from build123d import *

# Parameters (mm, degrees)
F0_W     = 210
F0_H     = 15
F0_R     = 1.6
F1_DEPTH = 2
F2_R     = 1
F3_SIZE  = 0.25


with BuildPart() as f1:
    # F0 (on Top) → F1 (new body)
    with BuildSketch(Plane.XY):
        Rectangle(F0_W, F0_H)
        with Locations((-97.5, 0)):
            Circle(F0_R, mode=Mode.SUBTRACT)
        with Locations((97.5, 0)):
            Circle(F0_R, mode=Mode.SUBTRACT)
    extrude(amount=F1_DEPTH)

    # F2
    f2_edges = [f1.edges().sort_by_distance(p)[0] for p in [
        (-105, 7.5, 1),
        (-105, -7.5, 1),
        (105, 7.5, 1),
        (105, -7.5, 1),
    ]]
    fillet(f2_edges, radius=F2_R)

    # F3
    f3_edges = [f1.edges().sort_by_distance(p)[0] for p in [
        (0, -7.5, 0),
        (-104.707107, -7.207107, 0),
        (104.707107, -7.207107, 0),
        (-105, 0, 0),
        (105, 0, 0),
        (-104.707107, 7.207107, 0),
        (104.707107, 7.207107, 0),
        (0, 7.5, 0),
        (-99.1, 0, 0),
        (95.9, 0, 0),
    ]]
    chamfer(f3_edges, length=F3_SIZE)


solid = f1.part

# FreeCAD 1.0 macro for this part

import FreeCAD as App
import Part
import Sketcher
from FreeCAD import Vector
Q = App.Units.Quantity


def edges_at(feature, points):
    """Names of the edges that pass closest to the given points."""
    edges = feature.Shape.Edges
    near = lambda p: min(range(len(edges)), key=lambda i: edges[i].distToShape(Part.Vertex(*p))[0])
    return sorted({f"Edge{near(p) + 1}" for p in points})


def add_polygon(sketch, points):
    """Adds a closed chain of lines whose ends are joined by coincident constraints."""
    first, n = sketch.GeometryCount, len(points)
    for a, b in zip(points, points[1:] + points[:1]):
        sketch.addGeometry(Part.LineSegment(App.Vector(*a, 0), App.Vector(*b, 0)), False)
    for i in range(n):
        sketch.addConstraint(Sketcher.Constraint("Coincident", first + i, 2, first + (i + 1) % n, 1))

doc = App.newDocument("Part")
body = doc.addObject("PartDesign::Body", "Body")

# Sketch on XY plane
sketch1 = body.newObject("Sketcher::SketchObject", "Sketch")
sketch1.AttachmentSupport = (doc.getObject("XY_Plane"), [""])
sketch1.MapMode = "FlatFace"
add_polygon(sketch1, [(-105, 7.5), (-105, -7.5), (105, -7.5), (105, 7.5)])  # lines 0-3
sketch1.addGeometry(Part.Circle(Vector(-97.5, 0, 0), Vector(0, 0, 1), 1.6), False)  # 4
sketch1.addGeometry(Part.Circle(Vector(97.5, 0, 0), Vector(0, 0, 1), 1.6), False)  # 5
sketch1.addConstraint(Sketcher.Constraint("Vertical", 0))
sketch1.addConstraint(Sketcher.Constraint("Horizontal", 1))
sketch1.addConstraint(Sketcher.Constraint("Vertical", 2))
sketch1.addConstraint(Sketcher.Constraint("Horizontal", 3))
sketch1.addConstraint(Sketcher.Constraint("Equal", 4, 5))
sketch1.addConstraint(Sketcher.Constraint("Symmetric", 4, 3, 5, 3, -1, 1))
sketch1.addConstraint(Sketcher.Constraint("Symmetric", 0, 2, 2, 2, -1, 1))
sketch1.addConstraint(Sketcher.Constraint("PointOnObject", 4, 3, -1))
sketch1.addConstraint(Sketcher.Constraint("Diameter", 4, Q("3.2 mm")))
sketch1.addConstraint(Sketcher.Constraint("DistanceX", 1, 1, 1, 2, Q("210 mm")))
sketch1.addConstraint(Sketcher.Constraint("DistanceY", 0, 2, 0, 1, Q("15 mm")))
sketch1.addConstraint(Sketcher.Constraint("DistanceX", 4, 3, 5, 3, Q("195 mm")))
pad1 = body.newObject("PartDesign::Pad", "Pad")
pad1.Profile = sketch1
pad1.Length = 2
doc.recompute()

fillet = body.newObject("PartDesign::Fillet", "Fillet")
fillet.Base = (pad1, edges_at(pad1, [
    (-105, 7.5, 1),
    (-105, -7.5, 1),
    (105, 7.5, 1),
    (105, -7.5, 1),
]))
fillet.Radius = 1
doc.recompute()

chamfer = body.newObject("PartDesign::Chamfer", "Chamfer")
chamfer.Base = (fillet, edges_at(fillet, [
    (0, -7.5, 0),
    (-104.707, -7.207, 0),
    (104.707, -7.207, 0),
    (-105, 0, 0),
    (105, 0, 0),
    (-104.707, 7.207, 0),
    (104.707, 7.207, 0),
    (0, 7.5, 0),
    (-99.1, 0, 0),
    (95.9, 0, 0),
]))
chamfer.Size = 0.25

doc.recompute()
